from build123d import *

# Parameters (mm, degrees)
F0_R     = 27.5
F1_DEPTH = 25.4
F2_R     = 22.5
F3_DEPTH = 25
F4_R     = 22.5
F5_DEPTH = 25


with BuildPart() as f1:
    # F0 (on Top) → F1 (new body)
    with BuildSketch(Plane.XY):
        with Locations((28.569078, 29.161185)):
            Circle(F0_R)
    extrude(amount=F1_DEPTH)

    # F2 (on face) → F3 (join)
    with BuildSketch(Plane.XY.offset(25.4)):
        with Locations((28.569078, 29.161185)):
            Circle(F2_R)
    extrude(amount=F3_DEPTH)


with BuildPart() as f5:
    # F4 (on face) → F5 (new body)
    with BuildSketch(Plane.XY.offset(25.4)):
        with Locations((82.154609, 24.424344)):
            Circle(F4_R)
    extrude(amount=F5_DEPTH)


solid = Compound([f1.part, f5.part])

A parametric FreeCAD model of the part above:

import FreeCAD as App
import Part
import Sketcher
Q = App.Units.Quantity

doc = App.newDocument("Part")
body = doc.addObject("PartDesign::Body", "Body")

# Sketch on XY plane
sketch1 = body.newObject("Sketcher::SketchObject", "Sketch")
sketch1.AttachmentSupport = (doc.getObject("XY_Plane"), [""])
sketch1.MapMode = "FlatFace"
sketch1.addGeometry(Part.Circle(App.Vector(29, 29, 0), App.Vector(0, 0, 1), 28), False)
sketch1.addConstraint([
    Sketcher.Constraint("Diameter", 0, Q("55 mm")),
    Sketcher.Constraint("DistanceX", -1, 1, 0, 3, Q("28.569078 mm")),
    Sketcher.Constraint("DistanceY", -1, 1, 0, 3, Q("29.161185 mm")),
])
pad1 = body.newObject("PartDesign::Pad", "Pad")
pad1.Profile = sketch1
pad1.Length = 25.4

# Sketch on XY plane
sketch2 = body.newObject("Sketcher::SketchObject", "Sketch001")
sketch2.AttachmentSupport = (doc.getObject("XY_Plane"), [""])
sketch2.MapMode = "FlatFace"
sketch2.AttachmentOffset = App.Placement(App.Vector(0, 0, 25.4), App.Rotation())
sketch2.addGeometry(Part.Circle(App.Vector(29, 29, 0), App.Vector(0, 0, 1), 22), False)
sketch2.addConstraint([
    Sketcher.Constraint("Diameter", 0, Q("45 mm")),
    Sketcher.Constraint("DistanceX", -1, 1, 0, 3, Q("28.569078 mm")),
    Sketcher.Constraint("DistanceY", -1, 1, 0, 3, Q("29.161185 mm")),
])
pad2 = body.newObject("PartDesign::Pad", "Pad001")
pad2.Profile = sketch2
pad2.Length = 25
body2 = doc.addObject("PartDesign::Body", "Body001")

# Sketch on XY plane
sketch3 = body2.newObject("Sketcher::SketchObject", "Sketch002")
sketch3.AttachmentSupport = (doc.getObject("XY_Plane001"), [""])
sketch3.MapMode = "FlatFace"
sketch3.AttachmentOffset = App.Placement(App.Vector(0, 0, 25.4), App.Rotation())
sketch3.addGeometry(Part.Circle(App.Vector(82, 24, 0), App.Vector(0, 0, 1), 22), False)
sketch3.addConstraint([
    Sketcher.Constraint("Diameter", 0, Q("45 mm")),
    Sketcher.Constraint("DistanceX", -1, 1, 0, 3, Q("82.154609 mm")),
    Sketcher.Constraint("DistanceY", -1, 1, 0, 3, Q("24.424344 mm")),
])
pad3 = body2.newObject("PartDesign::Pad", "Pad002")
pad3.Profile = sketch3
pad3.Length = 25

doc.recompute()
